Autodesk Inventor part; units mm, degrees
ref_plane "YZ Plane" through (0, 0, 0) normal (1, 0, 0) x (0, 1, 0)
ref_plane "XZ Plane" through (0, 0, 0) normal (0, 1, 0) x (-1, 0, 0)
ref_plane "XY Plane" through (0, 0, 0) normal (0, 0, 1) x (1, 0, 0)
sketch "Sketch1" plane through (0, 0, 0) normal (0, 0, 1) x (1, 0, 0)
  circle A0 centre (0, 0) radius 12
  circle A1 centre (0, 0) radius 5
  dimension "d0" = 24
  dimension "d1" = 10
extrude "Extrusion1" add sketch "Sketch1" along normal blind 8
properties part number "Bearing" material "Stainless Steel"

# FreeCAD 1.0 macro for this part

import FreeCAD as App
import Part
import Sketcher

doc = App.newDocument("Part")
body = doc.addObject("PartDesign::Body", "Body")

# Sketch on XY plane
sketch1 = body.newObject("Sketcher::SketchObject", "Sketch")
sketch1.AttachmentSupport = (doc.getObject("XY_Plane"), [""])
sketch1.MapMode = "FlatFace"
sketch1.addGeometry([
    Part.Circle(App.Vector(0, 0, 0), App.Vector(0, 0, 1), 12),
    Part.Circle(App.Vector(0, 0, 0), App.Vector(0, 0, 1), 5),
], False)
sketch1.addConstraint([
    Sketcher.Constraint("Coincident", 0, 3, -1, 1),
    Sketcher.Constraint("Coincident", 1, 3, -1, 1),
    Sketcher.Constraint("Diameter", 0, 24.0),
    Sketcher.Constraint("Diameter", 1, 10.0),
])
pad1 = body.newObject("PartDesign::Pad", "Pad")
pad1.Profile = sketch1
pad1.Length = 8

doc.recompute()
